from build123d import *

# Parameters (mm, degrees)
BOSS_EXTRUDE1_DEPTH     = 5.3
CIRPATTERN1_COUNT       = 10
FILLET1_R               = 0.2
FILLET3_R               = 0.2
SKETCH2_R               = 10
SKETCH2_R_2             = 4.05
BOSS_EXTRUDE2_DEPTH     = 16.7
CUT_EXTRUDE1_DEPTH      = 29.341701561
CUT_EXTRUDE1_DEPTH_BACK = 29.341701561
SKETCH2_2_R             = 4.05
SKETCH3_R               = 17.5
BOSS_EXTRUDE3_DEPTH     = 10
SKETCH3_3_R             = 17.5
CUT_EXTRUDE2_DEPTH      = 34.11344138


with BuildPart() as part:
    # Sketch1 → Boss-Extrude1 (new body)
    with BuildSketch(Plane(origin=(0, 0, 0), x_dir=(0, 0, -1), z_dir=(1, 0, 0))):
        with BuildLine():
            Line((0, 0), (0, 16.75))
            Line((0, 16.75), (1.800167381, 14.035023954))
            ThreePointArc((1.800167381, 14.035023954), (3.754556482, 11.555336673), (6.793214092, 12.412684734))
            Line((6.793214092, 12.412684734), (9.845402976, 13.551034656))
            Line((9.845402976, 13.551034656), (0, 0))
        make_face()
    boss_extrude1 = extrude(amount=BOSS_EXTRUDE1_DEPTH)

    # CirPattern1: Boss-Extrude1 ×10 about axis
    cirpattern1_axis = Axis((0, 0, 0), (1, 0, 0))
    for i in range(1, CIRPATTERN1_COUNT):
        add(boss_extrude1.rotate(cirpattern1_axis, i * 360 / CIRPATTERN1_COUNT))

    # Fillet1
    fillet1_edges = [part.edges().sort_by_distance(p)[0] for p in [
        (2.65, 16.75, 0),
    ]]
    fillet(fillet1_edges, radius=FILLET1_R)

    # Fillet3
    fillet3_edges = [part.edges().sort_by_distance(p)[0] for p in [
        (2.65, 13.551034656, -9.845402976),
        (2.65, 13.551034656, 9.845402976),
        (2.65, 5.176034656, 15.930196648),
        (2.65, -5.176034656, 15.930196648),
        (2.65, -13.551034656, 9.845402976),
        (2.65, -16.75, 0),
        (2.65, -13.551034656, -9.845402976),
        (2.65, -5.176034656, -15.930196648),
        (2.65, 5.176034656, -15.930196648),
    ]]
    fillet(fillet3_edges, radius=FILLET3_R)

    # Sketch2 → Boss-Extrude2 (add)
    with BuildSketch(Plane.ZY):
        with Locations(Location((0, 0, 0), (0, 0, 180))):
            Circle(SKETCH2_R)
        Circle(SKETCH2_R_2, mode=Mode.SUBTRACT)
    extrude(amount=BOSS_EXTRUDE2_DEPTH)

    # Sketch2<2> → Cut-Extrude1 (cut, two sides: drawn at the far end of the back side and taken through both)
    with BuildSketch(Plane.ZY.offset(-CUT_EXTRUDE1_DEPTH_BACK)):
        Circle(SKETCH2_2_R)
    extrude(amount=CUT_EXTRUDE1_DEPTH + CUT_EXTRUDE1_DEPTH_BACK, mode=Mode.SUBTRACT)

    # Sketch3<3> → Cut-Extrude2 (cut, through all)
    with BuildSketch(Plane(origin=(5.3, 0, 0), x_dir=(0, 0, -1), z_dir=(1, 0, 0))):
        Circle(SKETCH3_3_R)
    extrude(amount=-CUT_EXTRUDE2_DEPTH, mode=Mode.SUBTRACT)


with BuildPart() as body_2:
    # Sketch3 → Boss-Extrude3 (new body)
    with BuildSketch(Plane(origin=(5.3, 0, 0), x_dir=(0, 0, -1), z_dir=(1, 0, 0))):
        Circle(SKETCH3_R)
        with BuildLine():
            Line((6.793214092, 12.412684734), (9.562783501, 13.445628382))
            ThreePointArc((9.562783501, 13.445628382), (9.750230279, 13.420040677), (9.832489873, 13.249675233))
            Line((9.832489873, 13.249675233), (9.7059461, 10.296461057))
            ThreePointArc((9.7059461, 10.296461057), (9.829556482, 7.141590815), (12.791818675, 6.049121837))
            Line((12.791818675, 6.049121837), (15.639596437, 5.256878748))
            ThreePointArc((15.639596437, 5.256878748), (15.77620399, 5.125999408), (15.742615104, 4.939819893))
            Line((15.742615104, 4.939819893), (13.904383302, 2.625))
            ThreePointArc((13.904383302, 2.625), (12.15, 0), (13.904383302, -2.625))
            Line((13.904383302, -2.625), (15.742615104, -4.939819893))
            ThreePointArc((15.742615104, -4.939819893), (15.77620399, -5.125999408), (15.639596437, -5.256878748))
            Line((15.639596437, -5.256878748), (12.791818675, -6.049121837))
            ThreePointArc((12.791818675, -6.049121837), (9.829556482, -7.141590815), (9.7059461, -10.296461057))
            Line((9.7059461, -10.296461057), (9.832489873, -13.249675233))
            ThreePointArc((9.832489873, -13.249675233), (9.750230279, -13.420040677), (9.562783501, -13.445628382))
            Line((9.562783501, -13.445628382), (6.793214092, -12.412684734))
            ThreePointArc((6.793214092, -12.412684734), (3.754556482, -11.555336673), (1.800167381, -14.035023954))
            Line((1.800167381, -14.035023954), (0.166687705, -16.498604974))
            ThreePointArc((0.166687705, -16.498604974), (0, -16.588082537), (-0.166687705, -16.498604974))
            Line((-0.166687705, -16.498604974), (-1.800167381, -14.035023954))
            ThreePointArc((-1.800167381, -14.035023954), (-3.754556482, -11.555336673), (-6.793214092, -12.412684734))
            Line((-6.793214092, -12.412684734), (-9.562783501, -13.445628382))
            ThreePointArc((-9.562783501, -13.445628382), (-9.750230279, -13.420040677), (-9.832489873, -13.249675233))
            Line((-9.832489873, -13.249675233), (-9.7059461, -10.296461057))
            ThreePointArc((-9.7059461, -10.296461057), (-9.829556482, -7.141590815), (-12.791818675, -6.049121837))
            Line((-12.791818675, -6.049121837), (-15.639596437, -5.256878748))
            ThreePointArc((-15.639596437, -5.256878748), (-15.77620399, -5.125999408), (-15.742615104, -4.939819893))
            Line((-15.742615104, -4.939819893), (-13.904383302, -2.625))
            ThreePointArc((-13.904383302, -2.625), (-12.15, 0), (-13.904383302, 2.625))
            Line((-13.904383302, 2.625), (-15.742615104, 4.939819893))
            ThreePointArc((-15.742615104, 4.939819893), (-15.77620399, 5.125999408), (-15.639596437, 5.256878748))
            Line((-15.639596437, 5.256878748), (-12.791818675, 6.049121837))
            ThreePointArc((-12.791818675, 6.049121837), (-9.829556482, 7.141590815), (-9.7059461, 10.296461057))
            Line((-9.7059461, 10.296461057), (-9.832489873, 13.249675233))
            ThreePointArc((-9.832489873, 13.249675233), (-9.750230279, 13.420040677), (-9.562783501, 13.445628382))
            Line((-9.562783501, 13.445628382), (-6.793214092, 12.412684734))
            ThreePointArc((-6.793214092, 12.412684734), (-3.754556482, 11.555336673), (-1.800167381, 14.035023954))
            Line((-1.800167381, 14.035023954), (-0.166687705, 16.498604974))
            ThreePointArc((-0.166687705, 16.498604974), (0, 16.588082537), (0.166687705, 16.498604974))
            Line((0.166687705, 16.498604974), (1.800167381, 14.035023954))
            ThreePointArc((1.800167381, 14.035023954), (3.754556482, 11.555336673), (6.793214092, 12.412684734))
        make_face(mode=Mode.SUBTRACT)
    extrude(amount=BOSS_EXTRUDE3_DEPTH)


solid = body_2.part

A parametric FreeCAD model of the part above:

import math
import FreeCAD as App
import Part
import Sketcher

V = App.Vector
Q = App.Units.Quantity


def edges_at(feature, points):
    """Names of the edges that pass closest to the given points."""
    edges = feature.Shape.Edges
    near = lambda p: min(range(len(edges)), key=lambda i: edges[i].distToShape(Part.Vertex(*p))[0])
    return sorted({f"Edge{near(p) + 1}" for p in points})

doc = App.newDocument("Part")
body = doc.addObject("PartDesign::Body", "Body")

# Sketch on YZ plane
sketch1 = doc.addObject("Sketcher::SketchObject", "Sketch")
body.addObject(sketch1)
sketch1.AttachmentSupport = (doc.YZ_Plane, [""])
sketch1.MapMode = "FlatFace"
sketch1.addGeometry(Part.LineSegment(V(16.75, 0, 0), V(0, 0, 0)), False)
sketch1.addGeometry(Part.LineSegment(V(0, 0, 0), V(13.551035, -9.845403, 0)), False)
sketch1.addGeometry(Part.LineSegment(V(13.551035, -9.845403, 0), V(12.412685, -6.793214, 0)), False)
sketch1.addGeometry(Part.ArcOfCircle(Part.Circle(V(14.25731, -4.632481, 0), V(0, 0, 1), 2.841023), math.radians(94.487495), math.radians(229.512505)), False)
sketch1.addGeometry(Part.LineSegment(V(14.035024, -1.800167, 0), V(16.75, 0, 0)), False)
sketch1.addConstraint(Sketcher.Constraint("Coincident", 0, 2, 1, 1))
sketch1.addConstraint(Sketcher.Constraint("Coincident", 1, 2, 2, 1))
sketch1.addConstraint(Sketcher.Constraint("Coincident", 2, 2, 3, 2))
sketch1.addConstraint(Sketcher.Constraint("Coincident", 3, 1, 4, 1))
sketch1.addConstraint(Sketcher.Constraint("Coincident", 4, 2, 0, 1))
sketch1.addConstraint(Sketcher.Constraint("Horizontal", 0))
sketch1.addConstraint(Sketcher.Constraint("Coincident", 0, 2, -1, 1))
sketch1.addConstraint(Sketcher.Constraint("Equal", 2, 4))
sketch1.addConstraint(Sketcher.Constraint("Angle", 1, Q("-36 deg")))
sketch1.addConstraint(Sketcher.Constraint("DistanceX", 0, 2, 0, 1, Q("16.75 mm")))
sketch1.addConstraint(Sketcher.Constraint("Distance", 1, Q("16.75 mm")))
sketch1.addConstraint(Sketcher.Constraint("Radius", 3, Q("2.841023 mm")))
sketch1.addConstraint(Sketcher.Constraint("Distance", 2, Q("3.25756 mm")))
sketch1.addConstraint(Sketcher.Constraint("DistanceX", -1, 1, 3, 3, Q("14.25731 mm")))
sketch1.addConstraint(Sketcher.Constraint("DistanceY", 3, 3, -1, 1, Q("4.632481 mm")))
pad1 = doc.addObject("PartDesign::Pad", "Pad")
body.addObject(pad1)
pad1.Profile = sketch1
pad1.Length = 5.3
doc.recompute()

polarpattern = doc.addObject("PartDesign::PolarPattern", "PolarPattern")
body.addObject(polarpattern)
polarpattern.Originals = [pad1]
polarpattern.Axis = (doc.X_Axis, [""])
polarpattern.Angle = 360
polarpattern.Occurrences = 10
body.Tip = polarpattern
doc.recompute()

fillet = doc.addObject("PartDesign::Fillet", "Fillet")
body.addObject(fillet)
fillet.Base = (polarpattern, edges_at(polarpattern, [(2.65, 16.75, 0)]))
fillet.Radius = 0.2
doc.recompute()

fillet2 = doc.addObject("PartDesign::Fillet", "Fillet001")
body.addObject(fillet2)
fillet2.Base = (fillet, edges_at(fillet, [
    (2.65, 13.551, -9.845),
    (2.65, 13.551, 9.845),
    (2.65, 5.176, 15.93),
    (2.65, -5.176, 15.93),
    (2.65, -13.551, 9.845),
    (2.65, -16.75, 0),
    (2.65, -13.551, -9.845),
    (2.65, -5.176, -15.93),
    (2.65, 5.176, -15.93),
]))
fillet2.Radius = 0.2

# Sketch on YZ plane
sketch2 = doc.addObject("Sketcher::SketchObject", "Sketch001")
body.addObject(sketch2)
sketch2.AttachmentSupport = (doc.YZ_Plane, [""])
sketch2.MapMode = "FlatFace"
sketch2.addGeometry(Part.Circle(V(0, 0, 0), V(0, 0, 1), 10), False)
sketch2.addGeometry(Part.Circle(V(0, 0, 0), V(0, 0, 1), 4.05), False)
sketch2.addConstraint(Sketcher.Constraint("Coincident", 0, 3, -1, 1))
sketch2.addConstraint(Sketcher.Constraint("Coincident", 1, 3, -1, 1))
sketch2.addConstraint(Sketcher.Constraint("Diameter", 0, Q("20 mm")))
sketch2.addConstraint(Sketcher.Constraint("Diameter", 1, Q("8.1 mm")))
pad2 = doc.addObject("PartDesign::Pad", "Pad001")
body.addObject(pad2)
pad2.Profile = sketch2
pad2.Length = 16.7
pad2.Reversed = True

# Sketch on YZ plane
sketch3 = doc.addObject("Sketcher::SketchObject", "Sketch002")
body.addObject(sketch3)
sketch3.AttachmentSupport = (doc.YZ_Plane, [""])
sketch3.MapMode = "FlatFace"
sketch3.addGeometry(Part.Circle(V(0, 0, 0), V(0, 0, 1), 4.05), False)
sketch3.addConstraint(Sketcher.Constraint("Coincident", 0, 3, -1, 1))
sketch3.addConstraint(Sketcher.Constraint("Diameter", 0, Q("8.1 mm")))
pocket1 = doc.addObject("PartDesign::Pocket", "Pocket")
body.addObject(pocket1)
pocket1.Profile = sketch3
pocket1.Type = "ThroughAll"
pocket1.Midplane = True

# Sketch on YZ plane
sketch4 = doc.addObject("Sketcher::SketchObject", "Sketch003")
body.addObject(sketch4)
sketch4.AttachmentSupport = (doc.YZ_Plane, [""])
sketch4.MapMode = "FlatFace"
sketch4.AttachmentOffset = App.Placement(V(0, 0, 5.3), App.Rotation())
sketch4.addGeometry(Part.Circle(V(0, 0, 0), V(0, 0, 1), 17.5), False)
sketch4.addConstraint(Sketcher.Constraint("Coincident", 0, 3, -1, 1))
sketch4.addConstraint(Sketcher.Constraint("Diameter", 0, Q("35 mm")))
pocket2 = doc.addObject("PartDesign::Pocket", "Pocket001")
body.addObject(pocket2)
pocket2.Profile = sketch4
pocket2.Type = "ThroughAll"
body2 = doc.addObject("PartDesign::Body", "Body001")

# Sketch on YZ plane
sketch5 = doc.addObject("Sketcher::SketchObject", "Sketch004")
body2.addObject(sketch5)
sketch5.AttachmentSupport = (doc.getObject("YZ_Plane001"), [""])
sketch5.MapMode = "FlatFace"
sketch5.AttachmentOffset = App.Placement(V(0, 0, 5.3), App.Rotation())
sketch5.addGeometry(Part.Circle(V(0, 0, 0), V(0, 0, 1), 17.5), False)
sketch5.addGeometry(Part.ArcOfCircle(Part.Circle(V(14.25731, -4.632481, 0), V(0, 0, 1), 2.841023), math.radians(94.487495), math.radians(229.512505)), False)
sketch5.addGeometry(Part.LineSegment(V(12.412685, -6.793214, 0), V(13.445628, -9.562784, 0)), False)
sketch5.addGeometry(Part.ArcOfCircle(Part.Circle(V(13.258237, -9.632673, 0), V(0, 0, 1), 0.2), math.radians(-92.453595), math.radians(20.453595)), False)
sketch5.addGeometry(Part.LineSegment(V(13.249675, -9.83249, 0), V(10.296461, -9.705946, 0)), False)
sketch5.addGeometry(Part.ArcOfCircle(Part.Circle(V(8.811502, -12.127992, 0), V(0, 0, 1), 2.841023), math.radians(58.487495), math.radians(193.512505)), False)
sketch5.addGeometry(Part.LineSegment(V(6.049122, -12.791819, 0), V(5.256879, -15.639596, 0)), False)
sketch5.addGeometry(Part.ArcOfCircle(Part.Circle(V(5.064196, -15.585993, 0), V(0, 0, 1), 0.2), math.radians(-128.453595), math.radians(-15.546405)), False)
sketch5.addGeometry(Part.LineSegment(V(4.93982, -15.742615, 0), V(2.625, -13.904383, 0)), False)
sketch5.addGeometry(Part.ArcOfCircle(Part.Circle(V(0, -14.991023, 0), V(0, 0, 1), 2.841023), math.radians(22.487495), math.radians(157.512505)), False)
sketch5.addGeometry(Part.LineSegment(V(-2.625, -13.904383, 0), V(-4.93982, -15.742615, 0)), False)
sketch5.addGeometry(Part.ArcOfCircle(Part.Circle(V(-5.064196, -15.585993, 0), V(0, 0, 1), 0.2), math.radians(-164.453595), math.radians(-51.546405)), False)
sketch5.addGeometry(Part.LineSegment(V(-5.256879, -15.639596, 0), V(-6.049122, -12.791819, 0)), False)
sketch5.addGeometry(Part.ArcOfCircle(Part.Circle(V(-8.811502, -12.127992, 0), V(0, 0, 1), 2.841023), math.radians(-13.512505), math.radians(121.512505)), False)
sketch5.addGeometry(Part.LineSegment(V(-10.296461, -9.705946, 0), V(-13.249675, -9.83249, 0)), False)
sketch5.addGeometry(Part.ArcOfCircle(Part.Circle(V(-13.258237, -9.632673, 0), V(0, 0, 1), 0.2), math.radians(159.546405), math.radians(272.453595)), False)
sketch5.addGeometry(Part.LineSegment(V(-13.445628, -9.562784, 0), V(-12.412685, -6.793214, 0)), False)
sketch5.addGeometry(Part.ArcOfCircle(Part.Circle(V(-14.25731, -4.632481, 0), V(0, 0, 1), 2.841023), math.radians(-49.512505), math.radians(85.512505)), False)
sketch5.addGeometry(Part.LineSegment(V(-14.035024, -1.800167, 0), V(-16.498605, -0.166688, 0)), False)
sketch5.addGeometry(Part.ArcOfCircle(Part.Circle(V(-16.388083, 0, 0), V(0, 0, 1), 0.2), math.radians(123.546405), math.radians(236.453595)), False)
sketch5.addGeometry(Part.LineSegment(V(-16.498605, 0.166688, 0), V(-14.035024, 1.800167, 0)), False)
sketch5.addGeometry(Part.ArcOfCircle(Part.Circle(V(-14.25731, 4.632481, 0), V(0, 0, 1), 2.841023), math.radians(-85.512505), math.radians(49.512505)), False)
sketch5.addGeometry(Part.LineSegment(V(-12.412685, 6.793214, 0), V(-13.445628, 9.562784, 0)), False)
sketch5.addGeometry(Part.ArcOfCircle(Part.Circle(V(-13.258237, 9.632673, 0), V(0, 0, 1), 0.2), math.radians(87.546405), math.radians(200.453595)), False)
sketch5.addGeometry(Part.LineSegment(V(-13.249675, 9.83249, 0), V(-10.296461, 9.705946, 0)), False)
sketch5.addGeometry(Part.ArcOfCircle(Part.Circle(V(-8.811502, 12.127992, 0), V(0, 0, 1), 2.841023), math.radians(-121.512505), math.radians(13.512505)), False)
sketch5.addGeometry(Part.LineSegment(V(-6.049122, 12.791819, 0), V(-5.256879, 15.639596, 0)), False)
sketch5.addGeometry(Part.ArcOfCircle(Part.Circle(V(-5.064196, 15.585993, 0), V(0, 0, 1), 0.2), math.radians(51.546405), math.radians(164.453595)), False)
sketch5.addGeometry(Part.LineSegment(V(-4.93982, 15.742615, 0), V(-2.625, 13.904383, 0)), False)
sketch5.addGeometry(Part.ArcOfCircle(Part.Circle(V(0, 14.991023, 0), V(0, 0, 1), 2.841023), math.radians(-157.512505), math.radians(-22.487495)), False)
sketch5.addGeometry(Part.LineSegment(V(2.625, 13.904383, 0), V(4.93982, 15.742615, 0)), False)
sketch5.addGeometry(Part.ArcOfCircle(Part.Circle(V(5.064196, 15.585993, 0), V(0, 0, 1), 0.2), math.radians(15.546405), math.radians(128.453595)), False)
sketch5.addGeometry(Part.LineSegment(V(5.256879, 15.639596, 0), V(6.049122, 12.791819, 0)), False)
sketch5.addGeometry(Part.ArcOfCircle(Part.Circle(V(8.811502, 12.127992, 0), V(0, 0, 1), 2.841023), math.radians(166.487495), math.radians(301.512505)), False)
sketch5.addGeometry(Part.LineSegment(V(10.296461, 9.705946, 0), V(13.249675, 9.83249, 0)), False)
sketch5.addGeometry(Part.ArcOfCircle(Part.Circle(V(13.258237, 9.632673, 0), V(0, 0, 1), 0.2), math.radians(-20.453595), math.radians(92.453595)), False)
sketch5.addGeometry(Part.LineSegment(V(13.445628, 9.562784, 0), V(12.412685, 6.793214, 0)), False)
sketch5.addGeometry(Part.ArcOfCircle(Part.Circle(V(14.25731, 4.632481, 0), V(0, 0, 1), 2.841023), math.radians(130.487495), math.radians(265.512505)), False)
sketch5.addGeometry(Part.LineSegment(V(14.035024, 1.800167, 0), V(16.498605, 0.166688, 0)), False)
sketch5.addGeometry(Part.ArcOfCircle(Part.Circle(V(16.388083, 0, 0), V(0, 0, 1), 0.2), math.radians(-56.453595), math.radians(56.453595)), False)
sketch5.addGeometry(Part.LineSegment(V(16.498605, -0.166688, 0), V(14.035024, -1.800167, 0)), False)
sketch5.addConstraint(Sketcher.Constraint("Coincident", 1, 2, 2, 1))
sketch5.addConstraint(Sketcher.Constraint("Tangent", 2, 2, 3, 2))
sketch5.addConstraint(Sketcher.Constraint("Tangent", 3, 1, 4, 1))
sketch5.addConstraint(Sketcher.Constraint("Coincident", 4, 2, 5, 1))
sketch5.addConstraint(Sketcher.Constraint("Coincident", 5, 2, 6, 1))
sketch5.addConstraint(Sketcher.Constraint("Tangent", 6, 2, 7, 2))
sketch5.addConstraint(Sketcher.Constraint("Tangent", 7, 1, 8, 1))
sketch5.addConstraint(Sketcher.Constraint("Coincident", 8, 2, 9, 1))
sketch5.addConstraint(Sketcher.Constraint("Coincident", 9, 2, 10, 1))
sketch5.addConstraint(Sketcher.Constraint("Tangent", 10, 2, 11, 2))
sketch5.addConstraint(Sketcher.Constraint("Tangent", 11, 1, 12, 1))
sketch5.addConstraint(Sketcher.Constraint("Coincident", 12, 2, 13, 1))
sketch5.addConstraint(Sketcher.Constraint("Coincident", 13, 2, 14, 1))
sketch5.addConstraint(Sketcher.Constraint("Tangent", 14, 2, 15, 2))
sketch5.addConstraint(Sketcher.Constraint("Tangent", 15, 1, 16, 1))
sketch5.addConstraint(Sketcher.Constraint("Coincident", 16, 2, 17, 1))
sketch5.addConstraint(Sketcher.Constraint("Coincident", 17, 2, 18, 1))
sketch5.addConstraint(Sketcher.Constraint("Tangent", 18, 2, 19, 2))
sketch5.addConstraint(Sketcher.Constraint("Tangent", 19, 1, 20, 1))
sketch5.addConstraint(Sketcher.Constraint("Coincident", 20, 2, 21, 1))
sketch5.addConstraint(Sketcher.Constraint("Coincident", 21, 2, 22, 1))
sketch5.addConstraint(Sketcher.Constraint("Tangent", 22, 2, 23, 2))
sketch5.addConstraint(Sketcher.Constraint("Tangent", 23, 1, 24, 1))
sketch5.addConstraint(Sketcher.Constraint("Coincident", 24, 2, 25, 1))
sketch5.addConstraint(Sketcher.Constraint("Coincident", 25, 2, 26, 1))
sketch5.addConstraint(Sketcher.Constraint("Tangent", 26, 2, 27, 2))
sketch5.addConstraint(Sketcher.Constraint("Tangent", 27, 1, 28, 1))
sketch5.addConstraint(Sketcher.Constraint("Coincident", 28, 2, 29, 1))
sketch5.addConstraint(Sketcher.Constraint("Coincident", 29, 2, 30, 1))
sketch5.addConstraint(Sketcher.Constraint("Tangent", 30, 2, 31, 2))
sketch5.addConstraint(Sketcher.Constraint("Tangent", 31, 1, 32, 1))
sketch5.addConstraint(Sketcher.Constraint("Coincident", 32, 2, 33, 1))
sketch5.addConstraint(Sketcher.Constraint("Coincident", 33, 2, 34, 1))
sketch5.addConstraint(Sketcher.Constraint("Tangent", 34, 2, 35, 2))
sketch5.addConstraint(Sketcher.Constraint("Tangent", 35, 1, 36, 1))
sketch5.addConstraint(Sketcher.Constraint("Coincident", 36, 2, 37, 1))
sketch5.addConstraint(Sketcher.Constraint("Coincident", 37, 2, 38, 1))
sketch5.addConstraint(Sketcher.Constraint("Tangent", 38, 2, 39, 2))
sketch5.addConstraint(Sketcher.Constraint("Tangent", 39, 1, 40, 1))
sketch5.addConstraint(Sketcher.Constraint("Coincident", 40, 2, 1, 1))
sketch5.addConstraint(Sketcher.Constraint("Coincident", 0, 3, -1, 1))
sketch5.addConstraint(Sketcher.Constraint("Equal", 1, 5))
sketch5.addConstraint(Sketcher.Constraint("Equal", 3, 7))
sketch5.addConstraint(Sketcher.Constraint("Equal", 5, 9))
sketch5.addConstraint(Sketcher.Constraint("Equal", 7, 11))
sketch5.addConstraint(Sketcher.Constraint("Equal", 9, 13))
sketch5.addConstraint(Sketcher.Constraint("Equal", 11, 15))
sketch5.addConstraint(Sketcher.Constraint("Equal", 13, 17))
sketch5.addConstraint(Sketcher.Constraint("Equal", 15, 19))
sketch5.addConstraint(Sketcher.Constraint("Equal", 17, 21))
sketch5.addConstraint(Sketcher.Constraint("Equal", 19, 23))
sketch5.addConstraint(Sketcher.Constraint("Equal", 21, 25))
sketch5.addConstraint(Sketcher.Constraint("Equal", 23, 27))
sketch5.addConstraint(Sketcher.Constraint("Equal", 25, 29))
sketch5.addConstraint(Sketcher.Constraint("Equal", 27, 31))
sketch5.addConstraint(Sketcher.Constraint("Equal", 29, 33))
sketch5.addConstraint(Sketcher.Constraint("Equal", 31, 35))
sketch5.addConstraint(Sketcher.Constraint("Equal", 33, 37))
sketch5.addConstraint(Sketcher.Constraint("Equal", 35, 39))
sketch5.addConstraint(Sketcher.Constraint("Symmetric", 1, 3, 21, 3, -1, 1))
sketch5.addConstraint(Sketcher.Constraint("Symmetric", 3, 3, 23, 3, -1, 1))
sketch5.addConstraint(Sketcher.Constraint("Symmetric", 5, 3, 25, 3, -1, 1))
sketch5.addConstraint(Sketcher.Constraint("Symmetric", 7, 3, 27, 3, -1, 1))
sketch5.addConstraint(Sketcher.Constraint("Symmetric", 9, 3, 29, 3, -1, 1))
sketch5.addConstraint(Sketcher.Constraint("Symmetric", 11, 3, 31, 3, -1, 1))
sketch5.addConstraint(Sketcher.Constraint("Symmetric", 13, 3, 33, 3, -1, 1))
sketch5.addConstraint(Sketcher.Constraint("Symmetric", 15, 3, 35, 3, -1, 1))
sketch5.addConstraint(Sketcher.Constraint("Symmetric", 17, 3, 37, 3, -1, 1))
sketch5.addConstraint(Sketcher.Constraint("Symmetric", 19, 3, 39, 3, -1, 1))
sketch5.addConstraint(Sketcher.Constraint("Symmetric", 7, 3, 11, 3, -2))
sketch5.addConstraint(Sketcher.Constraint("Symmetric", 5, 3, 13, 3, -2))
sketch5.addConstraint(Sketcher.Constraint("Symmetric", 3, 3, 15, 3, -2))
sketch5.addConstraint(Sketcher.Constraint("Symmetric", 1, 3, 17, 3, -2))
sketch5.addConstraint(Sketcher.Constraint("Symmetric", 8, 2, 9, 2, -2))
sketch5.addConstraint(Sketcher.Constraint("Symmetric", 19, 1, 38, 2, -2))
sketch5.addConstraint(Sketcher.Constraint("Parallel", 2, 22))
sketch5.addConstraint(Sketcher.Constraint("Parallel", 4, 24))
sketch5.addConstraint(Sketcher.Constraint("Parallel", 6, 26))
sketch5.addConstraint(Sketcher.Constraint("Parallel", 8, 28))
sketch5.addConstraint(Sketcher.Constraint("Parallel", 10, 30))
sketch5.addConstraint(Sketcher.Constraint("Parallel", 12, 32))
sketch5.addConstraint(Sketcher.Constraint("Parallel", 14, 34))
sketch5.addConstraint(Sketcher.Constraint("Parallel", 16, 36))
sketch5.addConstraint(Sketcher.Constraint("Parallel", 18, 38))
sketch5.addConstraint(Sketcher.Constraint("Parallel", 20, 40))
sketch5.addConstraint(Sketcher.Constraint("Horizontal", 6, 2, 11, 1))
sketch5.addConstraint(Sketcher.Constraint("Horizontal", 4, 2, 13, 2))
sketch5.addConstraint(Sketcher.Constraint("Horizontal", 2, 2, 15, 1))
sketch5.addConstraint(Sketcher.Constraint("Equal", 2, 4))
sketch5.addConstraint(Sketcher.Constraint("Equal", 4, 6))
sketch5.addConstraint(Sketcher.Constraint("Equal", 6, 8))
sketch5.addConstraint(Sketcher.Constraint("Equal", 16, 18))
sketch5.addConstraint(Sketcher.Constraint("Diameter", 0, Q("35 mm")))
sketch5.addConstraint(Sketcher.Constraint("Radius", 3, Q("0.2 mm")))
sketch5.addConstraint(Sketcher.Constraint("DistanceX", -1, 1, 8, 2, Q("2.625 mm")))
sketch5.addConstraint(Sketcher.Constraint("Radius", 1, Q("2.841023 mm")))
sketch5.addConstraint(Sketcher.Constraint("DistanceX", -1, 1, 1, 3, Q("14.25731 mm")))
sketch5.addConstraint(Sketcher.Constraint("DistanceY", 1, 3, -1, 1, Q("4.632481 mm")))
sketch5.addConstraint(Sketcher.Constraint("DistanceX", -1, 1, 2, 2, Q("13.445628 mm")))
sketch5.addConstraint(Sketcher.Constraint("DistanceY", 3, 1, -1, 1, Q("9.83249 mm")))
sketch5.addConstraint(Sketcher.Constraint("DistanceX", -1, 1, 4, 2, Q("10.296461 mm")))
sketch5.addConstraint(Sketcher.Constraint("DistanceX", -1, 1, 5, 2, Q("6.049122 mm")))
sketch5.addConstraint(Sketcher.Constraint("DistanceY", 5, 2, -1, 1, Q("12.791819 mm")))
sketch5.addConstraint(Sketcher.Constraint("DistanceX", -1, 1, 6, 2, Q("5.256879 mm")))
sketch5.addConstraint(Sketcher.Constraint("Distance", 2, Q("2.955924 mm")))
sketch5.addConstraint(Sketcher.Constraint("DistanceX", 19, 3, -1, 1, Q("16.388083 mm")))
pad3 = doc.addObject("PartDesign::Pad", "Pad002")
body2.addObject(pad3)
pad3.Profile = sketch5
pad3.Length = 10

doc.recompute()
